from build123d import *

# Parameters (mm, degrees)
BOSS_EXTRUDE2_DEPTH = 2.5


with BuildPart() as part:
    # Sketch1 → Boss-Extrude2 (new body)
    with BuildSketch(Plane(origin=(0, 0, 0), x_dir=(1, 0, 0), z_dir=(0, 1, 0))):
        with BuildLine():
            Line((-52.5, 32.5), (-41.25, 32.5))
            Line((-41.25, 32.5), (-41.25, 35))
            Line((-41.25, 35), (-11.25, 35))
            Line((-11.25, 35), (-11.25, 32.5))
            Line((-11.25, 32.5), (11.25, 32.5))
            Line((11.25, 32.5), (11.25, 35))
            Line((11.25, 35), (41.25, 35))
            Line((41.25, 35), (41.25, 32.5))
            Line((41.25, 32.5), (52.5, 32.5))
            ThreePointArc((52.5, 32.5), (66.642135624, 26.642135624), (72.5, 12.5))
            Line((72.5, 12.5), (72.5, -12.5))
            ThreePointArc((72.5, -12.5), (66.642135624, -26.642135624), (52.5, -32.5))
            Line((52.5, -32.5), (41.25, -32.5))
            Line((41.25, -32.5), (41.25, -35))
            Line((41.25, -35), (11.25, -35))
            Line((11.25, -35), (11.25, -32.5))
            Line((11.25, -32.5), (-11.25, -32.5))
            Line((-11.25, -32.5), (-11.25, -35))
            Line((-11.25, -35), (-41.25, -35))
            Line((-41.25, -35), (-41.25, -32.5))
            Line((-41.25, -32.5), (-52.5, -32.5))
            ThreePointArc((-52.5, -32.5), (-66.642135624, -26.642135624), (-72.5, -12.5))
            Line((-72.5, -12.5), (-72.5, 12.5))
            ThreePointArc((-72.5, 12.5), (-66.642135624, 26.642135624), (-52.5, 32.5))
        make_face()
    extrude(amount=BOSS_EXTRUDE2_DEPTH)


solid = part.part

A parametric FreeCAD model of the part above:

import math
import FreeCAD as App
import Part
import Sketcher

V = App.Vector
Q = App.Units.Quantity

doc = App.newDocument("Part")
params = doc.addObject("Spreadsheet::Sheet", "Params")
for row, (alias, value) in enumerate([
    ("sketch1_radius", "20 mm"),
    ("sketch1_width", "30 mm"),
    ("sketch1_height", "25 mm"),
    ("sketch1_width2", "22.5 mm"),
    ("sketch1_height2", "2.5 mm"),
    ("pad1_length", "2.5 mm"),
], start=1):
    params.set(f"A{row}", alias)
    params.set(f"B{row}", "=" + value)
    params.setAlias(f"B{row}", alias)

body = doc.addObject("PartDesign::Body", "Body")

# Sketch on XZ plane
sketch1 = doc.addObject("Sketcher::SketchObject", "Sketch")
body.addObject(sketch1)
sketch1.AttachmentSupport = (doc.XZ_Plane, [""])
sketch1.MapMode = "FlatFace"
sketch1.addGeometry([
    Part.LineSegment(V(-41.2, -32.5, 0), V(-52.5, -32.5, 0)),  # 0
    Part.ArcOfCircle(Part.Circle(V(-52.5, -12.5, 0), V(0, 0, 1), 20), math.radians(180), math.radians(270)),  # 1
    Part.LineSegment(V(-72.5, -12.5, 0), V(-72.5, 12.5, 0)),  # 2
    Part.ArcOfCircle(Part.Circle(V(-52.5, 12.5, 0), V(0, 0, 1), 20), math.radians(90), math.radians(180)),  # 3
    Part.LineSegment(V(-52.5, 32.5, 0), V(-41.2, 32.5, 0)),  # 4
    Part.LineSegment(V(-41.2, 32.5, 0), V(-41.2, 35, 0)),  # 5
    Part.LineSegment(V(-41.2, 35, 0), V(-11.2, 35, 0)),  # 6
    Part.LineSegment(V(-11.2, 35, 0), V(-11.2, 32.5, 0)),  # 7
    Part.LineSegment(V(-11.2, 32.5, 0), V(11.2, 32.5, 0)),  # 8
    Part.LineSegment(V(11.2, 32.5, 0), V(11.2, 35, 0)),  # 9
    Part.LineSegment(V(11.2, 35, 0), V(41.2, 35, 0)),  # 10
    Part.LineSegment(V(41.2, 35, 0), V(41.2, 32.5, 0)),  # 11
    Part.LineSegment(V(41.2, 32.5, 0), V(52.5, 32.5, 0)),  # 12
    Part.ArcOfCircle(Part.Circle(V(52.5, 12.5, 0), V(0, 0, 1), 20), math.radians(0), math.radians(90)),  # 13
    Part.LineSegment(V(72.5, 12.5, 0), V(72.5, -12.5, 0)),  # 14
    Part.ArcOfCircle(Part.Circle(V(52.5, -12.5, 0), V(0, 0, 1), 20), math.radians(-90), math.radians(0)),  # 15
    Part.LineSegment(V(52.5, -32.5, 0), V(41.2, -32.5, 0)),  # 16
    Part.LineSegment(V(41.2, -32.5, 0), V(41.2, -35, 0)),  # 17
    Part.LineSegment(V(41.2, -35, 0), V(11.2, -35, 0)),  # 18
    Part.LineSegment(V(11.2, -35, 0), V(11.2, -32.5, 0)),  # 19
    Part.LineSegment(V(11.2, -32.5, 0), V(-11.2, -32.5, 0)),  # 20
    Part.LineSegment(V(-11.2, -32.5, 0), V(-11.2, -35, 0)),  # 21
    Part.LineSegment(V(-11.2, -35, 0), V(-41.2, -35, 0)),  # 22
    Part.LineSegment(V(-41.2, -35, 0), V(-41.2, -32.5, 0)),  # 23
], False)
sketch1.addConstraint([
    Sketcher.Constraint("Tangent", 0, 2, 1, 2),
    Sketcher.Constraint("Tangent", 1, 1, 2, 1),
    Sketcher.Constraint("Tangent", 2, 2, 3, 2),
    Sketcher.Constraint("Tangent", 3, 1, 4, 1),
    Sketcher.Constraint("Coincident", 4, 2, 5, 1),
    Sketcher.Constraint("Coincident", 5, 2, 6, 1),
    Sketcher.Constraint("Coincident", 6, 2, 7, 1),
    Sketcher.Constraint("Coincident", 7, 2, 8, 1),
    Sketcher.Constraint("Coincident", 8, 2, 9, 1),
    Sketcher.Constraint("Coincident", 9, 2, 10, 1),
    Sketcher.Constraint("Coincident", 10, 2, 11, 1),
    Sketcher.Constraint("Coincident", 11, 2, 12, 1),
    Sketcher.Constraint("Tangent", 12, 2, 13, 2),
    Sketcher.Constraint("Tangent", 13, 1, 14, 1),
    Sketcher.Constraint("Tangent", 14, 2, 15, 2),
    Sketcher.Constraint("Tangent", 15, 1, 16, 1),
    Sketcher.Constraint("Coincident", 16, 2, 17, 1),
    Sketcher.Constraint("Coincident", 17, 2, 18, 1),
    Sketcher.Constraint("Coincident", 18, 2, 19, 1),
    Sketcher.Constraint("Coincident", 19, 2, 20, 1),
    Sketcher.Constraint("Coincident", 20, 2, 21, 1),
    Sketcher.Constraint("Coincident", 21, 2, 22, 1),
    Sketcher.Constraint("Coincident", 22, 2, 23, 1),
    Sketcher.Constraint("Coincident", 23, 2, 0, 1),
    Sketcher.Constraint("Horizontal", 0),
    Sketcher.Constraint("Vertical", 2),
    Sketcher.Constraint("Horizontal", 4),
    Sketcher.Constraint("Vertical", 5),
    Sketcher.Constraint("Horizontal", 6),
    Sketcher.Constraint("Vertical", 7),
    Sketcher.Constraint("Horizontal", 8),
    Sketcher.Constraint("Vertical", 9),
    Sketcher.Constraint("Horizontal", 10),
    Sketcher.Constraint("Vertical", 11),
    Sketcher.Constraint("Horizontal", 12),
    Sketcher.Constraint("Vertical", 14),
    Sketcher.Constraint("Horizontal", 16),
    Sketcher.Constraint("Vertical", 17),
    Sketcher.Constraint("Horizontal", 18),
    Sketcher.Constraint("Vertical", 19),
    Sketcher.Constraint("Horizontal", 20),
    Sketcher.Constraint("Vertical", 21),
    Sketcher.Constraint("Horizontal", 22),
    Sketcher.Constraint("Vertical", 23),
    Sketcher.Constraint("Equal", 1, 3),
    Sketcher.Constraint("Equal", 3, 13),
    Sketcher.Constraint("Equal", 13, 15),
    Sketcher.Constraint("Symmetric", 1, 3, 13, 3, -1, 1),
    Sketcher.Constraint("Symmetric", 4, 2, 16, 2, -1, 1),
    Sketcher.Constraint("Symmetric", 6, 2, 18, 2, -1, 1),
    Sketcher.Constraint("Symmetric", 8, 2, 20, 2, -1, 1),
    Sketcher.Constraint("Symmetric", 10, 2, 22, 2, -1, 1),
    Sketcher.Constraint("Symmetric", 6, 2, 9, 2, -2),
    Sketcher.Constraint("Symmetric", 4, 2, 11, 2, -2),
    Sketcher.Constraint("Horizontal", 4, 2, 7, 2),
    Sketcher.Constraint("Radius", 1, Q("20 mm")),
    Sketcher.Constraint("DistanceX", 6, 1, 6, 2, Q("30 mm")),
    Sketcher.Constraint("DistanceY", 2, 1, 2, 2, Q("25 mm")),
    Sketcher.Constraint("DistanceX", 8, 1, 8, 2, Q("22.5 mm")),
    Sketcher.Constraint("DistanceY", 5, 1, 5, 2, Q("2.5 mm")),
    Sketcher.Constraint("DistanceX", 3, 3, 13, 3, Q("105 mm")),
])
sketch1.setExpression("Constraints[55]", "Params.sketch1_radius")
sketch1.setExpression("Constraints[56]", "Params.sketch1_width")
sketch1.setExpression("Constraints[57]", "Params.sketch1_height")
sketch1.setExpression("Constraints[58]", "Params.sketch1_width2")
sketch1.setExpression("Constraints[59]", "Params.sketch1_height2")
pad1 = doc.addObject("PartDesign::Pad", "Pad")
body.addObject(pad1)
pad1.Profile = sketch1
pad1.setExpression("Length", "Params.pad1_length")
pad1.Reversed = True

doc.recompute()
